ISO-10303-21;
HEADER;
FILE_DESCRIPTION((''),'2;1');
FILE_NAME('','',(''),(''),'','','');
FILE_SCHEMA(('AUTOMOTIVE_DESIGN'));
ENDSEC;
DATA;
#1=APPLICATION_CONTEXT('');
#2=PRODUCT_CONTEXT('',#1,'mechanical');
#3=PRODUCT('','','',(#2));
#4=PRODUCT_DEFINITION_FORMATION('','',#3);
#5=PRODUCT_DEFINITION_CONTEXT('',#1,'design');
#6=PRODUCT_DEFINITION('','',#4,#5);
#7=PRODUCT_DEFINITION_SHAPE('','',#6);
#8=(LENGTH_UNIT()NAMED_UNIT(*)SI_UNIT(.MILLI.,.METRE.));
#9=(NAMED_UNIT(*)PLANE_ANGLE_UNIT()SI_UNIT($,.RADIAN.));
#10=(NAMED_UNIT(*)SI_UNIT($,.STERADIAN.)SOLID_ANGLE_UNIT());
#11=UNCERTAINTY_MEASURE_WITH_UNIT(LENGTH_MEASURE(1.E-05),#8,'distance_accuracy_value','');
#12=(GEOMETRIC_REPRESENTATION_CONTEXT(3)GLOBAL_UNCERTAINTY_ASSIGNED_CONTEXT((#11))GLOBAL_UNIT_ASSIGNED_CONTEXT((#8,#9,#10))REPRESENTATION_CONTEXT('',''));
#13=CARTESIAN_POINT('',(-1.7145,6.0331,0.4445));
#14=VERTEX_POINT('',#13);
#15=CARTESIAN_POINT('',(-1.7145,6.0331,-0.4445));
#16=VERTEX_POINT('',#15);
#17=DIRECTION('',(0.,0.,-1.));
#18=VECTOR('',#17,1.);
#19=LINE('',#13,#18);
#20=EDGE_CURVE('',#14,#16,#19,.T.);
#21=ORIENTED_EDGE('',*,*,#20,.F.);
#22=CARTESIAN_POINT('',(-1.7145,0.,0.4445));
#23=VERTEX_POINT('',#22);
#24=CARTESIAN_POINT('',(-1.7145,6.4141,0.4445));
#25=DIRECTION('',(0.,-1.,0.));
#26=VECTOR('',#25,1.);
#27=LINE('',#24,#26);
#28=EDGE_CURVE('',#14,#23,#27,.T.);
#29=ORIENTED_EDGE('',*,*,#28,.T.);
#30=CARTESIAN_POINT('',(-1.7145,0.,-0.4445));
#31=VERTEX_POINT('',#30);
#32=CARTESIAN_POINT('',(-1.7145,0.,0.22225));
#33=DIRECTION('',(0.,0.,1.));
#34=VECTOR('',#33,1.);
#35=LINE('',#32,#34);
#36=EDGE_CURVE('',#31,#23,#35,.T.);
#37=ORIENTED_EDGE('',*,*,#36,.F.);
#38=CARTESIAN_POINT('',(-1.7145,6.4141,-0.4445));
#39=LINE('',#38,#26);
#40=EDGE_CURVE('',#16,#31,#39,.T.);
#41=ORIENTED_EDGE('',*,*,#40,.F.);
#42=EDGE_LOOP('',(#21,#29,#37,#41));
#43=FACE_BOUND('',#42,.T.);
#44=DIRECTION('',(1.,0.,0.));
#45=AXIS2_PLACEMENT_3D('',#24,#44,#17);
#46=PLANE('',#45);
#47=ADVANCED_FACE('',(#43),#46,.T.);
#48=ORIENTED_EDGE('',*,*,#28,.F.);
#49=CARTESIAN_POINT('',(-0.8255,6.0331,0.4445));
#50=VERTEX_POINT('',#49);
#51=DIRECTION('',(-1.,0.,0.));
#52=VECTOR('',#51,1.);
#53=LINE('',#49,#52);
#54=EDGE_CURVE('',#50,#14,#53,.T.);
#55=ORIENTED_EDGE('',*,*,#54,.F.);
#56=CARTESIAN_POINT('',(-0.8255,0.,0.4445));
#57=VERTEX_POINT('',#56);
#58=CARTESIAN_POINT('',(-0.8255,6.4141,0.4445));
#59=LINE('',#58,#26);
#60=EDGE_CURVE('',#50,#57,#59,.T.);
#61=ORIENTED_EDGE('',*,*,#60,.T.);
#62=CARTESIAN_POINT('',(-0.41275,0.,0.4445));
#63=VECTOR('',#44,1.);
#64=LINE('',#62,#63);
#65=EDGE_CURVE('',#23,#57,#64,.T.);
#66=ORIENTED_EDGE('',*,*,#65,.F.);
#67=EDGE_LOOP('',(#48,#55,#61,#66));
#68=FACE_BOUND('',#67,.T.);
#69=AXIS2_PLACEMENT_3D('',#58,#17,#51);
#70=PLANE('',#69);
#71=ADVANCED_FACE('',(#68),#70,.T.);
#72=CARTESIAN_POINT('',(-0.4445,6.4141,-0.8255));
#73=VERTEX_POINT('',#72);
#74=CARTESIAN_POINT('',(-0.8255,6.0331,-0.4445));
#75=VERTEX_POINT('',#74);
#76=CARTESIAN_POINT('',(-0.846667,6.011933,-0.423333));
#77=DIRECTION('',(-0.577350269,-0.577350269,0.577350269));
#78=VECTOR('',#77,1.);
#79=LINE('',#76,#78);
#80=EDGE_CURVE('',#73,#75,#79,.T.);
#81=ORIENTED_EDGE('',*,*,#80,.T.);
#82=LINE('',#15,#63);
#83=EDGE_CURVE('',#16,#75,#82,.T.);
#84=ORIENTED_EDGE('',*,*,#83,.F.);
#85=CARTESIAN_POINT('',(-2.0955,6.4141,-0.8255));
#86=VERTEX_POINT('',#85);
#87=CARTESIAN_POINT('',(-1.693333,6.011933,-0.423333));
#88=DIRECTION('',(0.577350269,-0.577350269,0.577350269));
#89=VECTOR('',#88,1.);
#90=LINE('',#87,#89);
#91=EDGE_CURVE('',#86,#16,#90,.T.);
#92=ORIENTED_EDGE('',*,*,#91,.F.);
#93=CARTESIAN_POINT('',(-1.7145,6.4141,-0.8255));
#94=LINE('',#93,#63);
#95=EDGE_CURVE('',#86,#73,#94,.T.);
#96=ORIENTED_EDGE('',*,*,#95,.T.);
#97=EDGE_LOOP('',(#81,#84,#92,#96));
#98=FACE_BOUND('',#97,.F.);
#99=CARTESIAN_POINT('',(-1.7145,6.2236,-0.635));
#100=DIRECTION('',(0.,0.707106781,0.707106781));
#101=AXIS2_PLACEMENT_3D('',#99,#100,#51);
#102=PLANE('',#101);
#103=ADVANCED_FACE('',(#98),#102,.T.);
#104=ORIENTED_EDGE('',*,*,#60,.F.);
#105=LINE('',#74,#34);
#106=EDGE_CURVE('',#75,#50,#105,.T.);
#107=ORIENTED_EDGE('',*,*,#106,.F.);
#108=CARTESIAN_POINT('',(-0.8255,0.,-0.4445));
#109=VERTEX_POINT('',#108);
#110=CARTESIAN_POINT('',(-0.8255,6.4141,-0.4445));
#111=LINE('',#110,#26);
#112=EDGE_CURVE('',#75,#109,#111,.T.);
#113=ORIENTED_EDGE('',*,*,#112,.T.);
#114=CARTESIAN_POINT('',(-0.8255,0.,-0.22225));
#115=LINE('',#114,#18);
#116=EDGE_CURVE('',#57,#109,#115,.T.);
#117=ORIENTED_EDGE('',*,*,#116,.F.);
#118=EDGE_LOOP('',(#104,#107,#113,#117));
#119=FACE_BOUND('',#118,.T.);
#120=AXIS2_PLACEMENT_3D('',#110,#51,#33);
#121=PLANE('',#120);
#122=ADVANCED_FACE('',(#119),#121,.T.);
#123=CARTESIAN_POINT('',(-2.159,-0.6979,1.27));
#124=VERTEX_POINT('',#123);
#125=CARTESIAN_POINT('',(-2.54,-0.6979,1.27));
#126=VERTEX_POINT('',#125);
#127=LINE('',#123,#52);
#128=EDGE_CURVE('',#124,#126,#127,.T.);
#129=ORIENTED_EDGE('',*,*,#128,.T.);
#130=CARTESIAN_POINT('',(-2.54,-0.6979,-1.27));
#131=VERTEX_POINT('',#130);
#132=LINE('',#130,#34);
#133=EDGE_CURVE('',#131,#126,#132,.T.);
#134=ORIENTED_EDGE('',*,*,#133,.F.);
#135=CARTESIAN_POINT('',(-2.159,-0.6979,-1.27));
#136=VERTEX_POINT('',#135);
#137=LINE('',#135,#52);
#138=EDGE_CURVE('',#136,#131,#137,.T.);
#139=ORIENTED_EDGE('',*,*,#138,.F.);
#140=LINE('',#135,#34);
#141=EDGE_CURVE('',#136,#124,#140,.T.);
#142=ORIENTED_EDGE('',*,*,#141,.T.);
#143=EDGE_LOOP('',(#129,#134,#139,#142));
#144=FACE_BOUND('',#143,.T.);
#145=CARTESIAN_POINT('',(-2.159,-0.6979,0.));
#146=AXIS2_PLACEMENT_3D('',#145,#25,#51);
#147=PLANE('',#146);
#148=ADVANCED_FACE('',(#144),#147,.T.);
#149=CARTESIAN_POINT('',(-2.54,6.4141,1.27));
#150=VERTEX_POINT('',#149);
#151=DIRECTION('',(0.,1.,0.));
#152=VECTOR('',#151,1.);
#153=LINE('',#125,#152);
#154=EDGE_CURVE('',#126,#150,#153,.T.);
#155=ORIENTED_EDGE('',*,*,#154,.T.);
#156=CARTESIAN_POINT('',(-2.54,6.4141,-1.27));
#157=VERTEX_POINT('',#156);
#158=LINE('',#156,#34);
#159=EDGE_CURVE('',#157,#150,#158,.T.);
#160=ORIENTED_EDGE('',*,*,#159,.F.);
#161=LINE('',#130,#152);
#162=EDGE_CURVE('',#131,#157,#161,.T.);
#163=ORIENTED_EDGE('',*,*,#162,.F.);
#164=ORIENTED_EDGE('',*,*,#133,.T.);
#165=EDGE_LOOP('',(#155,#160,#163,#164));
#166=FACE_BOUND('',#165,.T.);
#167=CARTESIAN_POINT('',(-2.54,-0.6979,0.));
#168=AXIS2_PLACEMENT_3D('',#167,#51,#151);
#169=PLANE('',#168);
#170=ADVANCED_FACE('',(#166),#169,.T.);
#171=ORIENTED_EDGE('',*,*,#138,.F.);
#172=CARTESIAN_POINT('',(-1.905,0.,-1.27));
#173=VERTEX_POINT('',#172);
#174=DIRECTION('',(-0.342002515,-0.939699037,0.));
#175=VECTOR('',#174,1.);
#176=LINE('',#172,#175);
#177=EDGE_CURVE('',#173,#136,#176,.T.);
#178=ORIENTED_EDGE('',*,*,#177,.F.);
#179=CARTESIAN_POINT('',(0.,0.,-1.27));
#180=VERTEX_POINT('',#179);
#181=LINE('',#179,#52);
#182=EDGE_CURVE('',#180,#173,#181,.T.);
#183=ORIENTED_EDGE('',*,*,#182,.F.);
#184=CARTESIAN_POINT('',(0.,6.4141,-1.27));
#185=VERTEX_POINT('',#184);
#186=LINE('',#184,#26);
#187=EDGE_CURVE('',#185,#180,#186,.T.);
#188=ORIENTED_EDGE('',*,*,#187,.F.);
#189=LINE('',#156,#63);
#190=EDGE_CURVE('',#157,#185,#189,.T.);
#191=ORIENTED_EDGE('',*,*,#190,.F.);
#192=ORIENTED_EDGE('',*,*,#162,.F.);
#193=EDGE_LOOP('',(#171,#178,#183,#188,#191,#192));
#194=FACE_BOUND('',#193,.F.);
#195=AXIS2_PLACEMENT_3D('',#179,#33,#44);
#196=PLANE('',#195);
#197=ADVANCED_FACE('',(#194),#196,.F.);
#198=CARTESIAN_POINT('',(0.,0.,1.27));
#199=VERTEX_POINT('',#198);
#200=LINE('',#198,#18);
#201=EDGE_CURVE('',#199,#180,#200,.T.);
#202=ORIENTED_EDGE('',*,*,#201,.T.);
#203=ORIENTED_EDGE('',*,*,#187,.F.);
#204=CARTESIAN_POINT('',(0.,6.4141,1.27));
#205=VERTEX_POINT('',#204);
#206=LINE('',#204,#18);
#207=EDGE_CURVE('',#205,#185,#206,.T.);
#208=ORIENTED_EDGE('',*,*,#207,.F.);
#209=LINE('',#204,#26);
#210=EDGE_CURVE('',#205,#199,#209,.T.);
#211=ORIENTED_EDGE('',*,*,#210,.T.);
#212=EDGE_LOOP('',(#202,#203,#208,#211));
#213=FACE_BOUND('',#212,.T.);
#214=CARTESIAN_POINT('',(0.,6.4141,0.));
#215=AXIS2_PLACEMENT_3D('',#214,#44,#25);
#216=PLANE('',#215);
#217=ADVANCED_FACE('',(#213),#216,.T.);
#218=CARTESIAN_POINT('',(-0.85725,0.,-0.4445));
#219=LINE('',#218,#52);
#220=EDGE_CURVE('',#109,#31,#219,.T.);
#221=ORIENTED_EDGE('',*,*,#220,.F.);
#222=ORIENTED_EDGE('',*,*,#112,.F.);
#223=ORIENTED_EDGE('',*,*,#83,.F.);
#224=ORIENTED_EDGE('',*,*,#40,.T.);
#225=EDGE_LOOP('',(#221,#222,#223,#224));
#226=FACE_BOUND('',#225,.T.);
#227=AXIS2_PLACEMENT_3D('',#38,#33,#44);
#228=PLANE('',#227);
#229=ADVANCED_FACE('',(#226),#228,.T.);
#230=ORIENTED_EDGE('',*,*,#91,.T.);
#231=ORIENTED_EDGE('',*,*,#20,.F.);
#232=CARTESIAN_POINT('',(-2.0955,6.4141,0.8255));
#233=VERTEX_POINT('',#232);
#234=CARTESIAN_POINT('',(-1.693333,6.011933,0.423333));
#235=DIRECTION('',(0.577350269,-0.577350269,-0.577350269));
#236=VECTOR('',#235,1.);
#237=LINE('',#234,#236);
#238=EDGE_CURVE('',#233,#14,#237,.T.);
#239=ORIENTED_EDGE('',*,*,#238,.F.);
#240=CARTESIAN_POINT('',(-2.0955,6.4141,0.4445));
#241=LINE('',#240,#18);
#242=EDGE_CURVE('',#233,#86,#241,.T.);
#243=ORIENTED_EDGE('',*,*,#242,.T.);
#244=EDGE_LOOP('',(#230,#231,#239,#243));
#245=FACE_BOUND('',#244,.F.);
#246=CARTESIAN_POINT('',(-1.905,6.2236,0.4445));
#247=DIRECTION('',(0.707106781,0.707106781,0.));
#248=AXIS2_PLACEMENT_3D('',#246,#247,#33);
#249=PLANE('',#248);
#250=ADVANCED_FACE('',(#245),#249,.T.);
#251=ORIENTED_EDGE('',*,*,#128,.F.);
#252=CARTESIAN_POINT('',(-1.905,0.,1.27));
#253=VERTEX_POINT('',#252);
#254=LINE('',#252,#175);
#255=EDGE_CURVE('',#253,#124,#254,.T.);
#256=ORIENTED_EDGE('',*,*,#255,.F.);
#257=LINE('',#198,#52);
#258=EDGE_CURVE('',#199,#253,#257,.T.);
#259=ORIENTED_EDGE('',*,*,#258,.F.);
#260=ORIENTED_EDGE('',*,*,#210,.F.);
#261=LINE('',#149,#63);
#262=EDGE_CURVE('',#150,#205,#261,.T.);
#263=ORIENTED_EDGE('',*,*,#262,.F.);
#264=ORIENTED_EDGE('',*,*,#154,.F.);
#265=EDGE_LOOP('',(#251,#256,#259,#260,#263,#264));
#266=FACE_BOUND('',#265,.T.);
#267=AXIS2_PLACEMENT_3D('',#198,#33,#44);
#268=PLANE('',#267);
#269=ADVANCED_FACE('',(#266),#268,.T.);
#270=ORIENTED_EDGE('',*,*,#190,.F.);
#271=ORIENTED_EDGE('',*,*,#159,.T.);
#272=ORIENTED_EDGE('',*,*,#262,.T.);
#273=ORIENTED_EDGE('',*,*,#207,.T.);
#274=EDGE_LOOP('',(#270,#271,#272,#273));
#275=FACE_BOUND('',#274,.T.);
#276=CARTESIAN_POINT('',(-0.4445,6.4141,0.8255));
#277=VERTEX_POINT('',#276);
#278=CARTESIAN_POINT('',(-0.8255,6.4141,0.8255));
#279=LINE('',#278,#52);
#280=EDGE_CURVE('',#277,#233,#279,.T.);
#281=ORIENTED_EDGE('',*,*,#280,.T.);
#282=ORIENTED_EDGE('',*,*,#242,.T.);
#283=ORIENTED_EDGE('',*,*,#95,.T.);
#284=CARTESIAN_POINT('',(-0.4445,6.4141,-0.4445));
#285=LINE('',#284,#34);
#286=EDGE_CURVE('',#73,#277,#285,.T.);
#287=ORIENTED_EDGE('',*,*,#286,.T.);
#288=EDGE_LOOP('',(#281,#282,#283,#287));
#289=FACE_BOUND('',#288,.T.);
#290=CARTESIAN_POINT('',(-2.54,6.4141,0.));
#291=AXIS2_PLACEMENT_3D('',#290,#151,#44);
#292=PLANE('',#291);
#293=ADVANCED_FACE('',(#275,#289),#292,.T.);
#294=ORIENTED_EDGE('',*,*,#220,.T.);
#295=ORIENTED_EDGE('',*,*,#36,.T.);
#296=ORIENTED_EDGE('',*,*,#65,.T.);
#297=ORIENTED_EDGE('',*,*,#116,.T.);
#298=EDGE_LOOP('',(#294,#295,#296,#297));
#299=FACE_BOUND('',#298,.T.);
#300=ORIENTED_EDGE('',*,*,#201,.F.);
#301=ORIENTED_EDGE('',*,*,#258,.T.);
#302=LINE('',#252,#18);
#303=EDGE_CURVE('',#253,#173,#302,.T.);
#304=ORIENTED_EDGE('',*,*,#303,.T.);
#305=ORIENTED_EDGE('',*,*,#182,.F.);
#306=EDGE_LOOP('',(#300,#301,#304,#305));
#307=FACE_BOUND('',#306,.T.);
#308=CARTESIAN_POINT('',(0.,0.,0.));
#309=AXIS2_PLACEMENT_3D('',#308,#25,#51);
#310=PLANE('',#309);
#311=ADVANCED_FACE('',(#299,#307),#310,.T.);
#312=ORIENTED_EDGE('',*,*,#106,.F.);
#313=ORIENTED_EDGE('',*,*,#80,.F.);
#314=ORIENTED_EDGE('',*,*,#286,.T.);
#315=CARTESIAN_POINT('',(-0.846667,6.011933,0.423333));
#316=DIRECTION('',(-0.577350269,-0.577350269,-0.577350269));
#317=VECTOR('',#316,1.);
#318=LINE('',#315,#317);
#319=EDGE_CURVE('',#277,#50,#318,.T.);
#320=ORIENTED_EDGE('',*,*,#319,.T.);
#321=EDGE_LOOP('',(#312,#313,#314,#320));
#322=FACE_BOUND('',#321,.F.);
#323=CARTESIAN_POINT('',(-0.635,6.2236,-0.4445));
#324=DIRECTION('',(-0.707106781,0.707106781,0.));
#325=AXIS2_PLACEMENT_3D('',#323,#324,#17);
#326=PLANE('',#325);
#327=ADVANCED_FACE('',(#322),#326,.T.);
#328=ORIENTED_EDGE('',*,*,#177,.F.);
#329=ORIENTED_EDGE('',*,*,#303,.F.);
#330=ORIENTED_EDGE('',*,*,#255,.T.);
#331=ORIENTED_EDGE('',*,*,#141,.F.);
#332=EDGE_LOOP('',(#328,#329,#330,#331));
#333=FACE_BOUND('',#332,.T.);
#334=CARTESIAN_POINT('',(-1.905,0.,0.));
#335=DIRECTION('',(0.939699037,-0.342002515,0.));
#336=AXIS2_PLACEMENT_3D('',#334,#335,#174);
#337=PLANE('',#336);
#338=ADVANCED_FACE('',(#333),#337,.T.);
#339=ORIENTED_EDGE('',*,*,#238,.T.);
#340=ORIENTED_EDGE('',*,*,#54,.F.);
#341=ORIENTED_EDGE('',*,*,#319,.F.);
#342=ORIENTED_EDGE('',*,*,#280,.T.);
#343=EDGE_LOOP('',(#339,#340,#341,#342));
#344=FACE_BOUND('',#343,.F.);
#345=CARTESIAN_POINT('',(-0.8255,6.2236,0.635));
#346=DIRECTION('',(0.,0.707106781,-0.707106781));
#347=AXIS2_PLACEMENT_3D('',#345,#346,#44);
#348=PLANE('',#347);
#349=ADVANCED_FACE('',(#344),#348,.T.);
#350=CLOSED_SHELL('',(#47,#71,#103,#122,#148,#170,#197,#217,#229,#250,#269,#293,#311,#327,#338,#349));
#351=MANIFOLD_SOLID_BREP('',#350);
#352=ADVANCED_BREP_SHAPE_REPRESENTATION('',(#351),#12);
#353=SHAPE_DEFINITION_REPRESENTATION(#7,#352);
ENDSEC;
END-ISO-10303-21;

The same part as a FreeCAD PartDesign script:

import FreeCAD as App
import Part
import Sketcher
from FreeCAD import Vector
Q = App.Units.Quantity


def edges_at(feature, points):
    """Names of the edges that pass closest to the given points."""
    edges = feature.Shape.Edges
    near = lambda p: min(range(len(edges)), key=lambda i: edges[i].distToShape(Part.Vertex(*p))[0])
    return sorted({f"Edge{near(p) + 1}" for p in points})

doc = App.newDocument("Part")
body = doc.addObject("PartDesign::Body", "Body")

# Sketch on XY plane
sketch1 = doc.addObject("Sketcher::SketchObject", "Sketch")
body.addObject(sketch1)
sketch1.AttachmentSupport = (doc.XY_Plane, [""])
sketch1.MapMode = "FlatFace"
sketch1.addGeometry([
    Part.LineSegment(Vector(0, 6.41, 0), Vector(-2.54, 6.41, 0)),  # 0
    Part.LineSegment(Vector(-2.54, 6.41, 0), Vector(-2.54, -0.7, 0)),  # 1
    Part.LineSegment(Vector(-2.54, -0.7, 0), Vector(-2.16, -0.7, 0)),  # 2
    Part.LineSegment(Vector(-2.16, -0.7, 0), Vector(-1.91, 0, 0)),  # 3
    Part.LineSegment(Vector(-1.91, 0, 0), Vector(0, 0, 0)),  # 4
    Part.LineSegment(Vector(0, 0, 0), Vector(0, 6.41, 0)),  # 5
], False)
sketch1.addConstraint([
    Sketcher.Constraint("Coincident", 0, 2, 1, 1),
    Sketcher.Constraint("Coincident", 1, 2, 2, 1),
    Sketcher.Constraint("Coincident", 2, 2, 3, 1),
    Sketcher.Constraint("Coincident", 3, 2, 4, 1),
    Sketcher.Constraint("Coincident", 4, 2, 5, 1),
    Sketcher.Constraint("Coincident", 5, 2, 0, 1),
    Sketcher.Constraint("Horizontal", 0),
    Sketcher.Constraint("Vertical", 1),
    Sketcher.Constraint("Horizontal", 2),
    Sketcher.Constraint("Horizontal", 4),
    Sketcher.Constraint("Vertical", 5),
    Sketcher.Constraint("Coincident", 4, 2, -1, 1),
    Sketcher.Constraint("DistanceX", 0, 2, 0, 1, Q("0.1 in")),
    Sketcher.Constraint("DistanceY", 1, 2, 1, 1, Q("0.28 in")),
    Sketcher.Constraint("DistanceX", 2, 1, 2, 2, Q("0.015 in")),
    Sketcher.Constraint("DistanceX", 4, 1, 4, 2, Q("0.075 in")),
    Sketcher.Constraint("Angle", 3, Q("70.001 deg")),
])
pad1 = doc.addObject("PartDesign::Pad", "Pad")
body.addObject(pad1)
pad1.Profile = sketch1
pad1.Length = Q("0.1 in")
pad1.Midplane = True

# Sketch on XZ plane
sketch2 = doc.addObject("Sketcher::SketchObject", "Sketch001")
body.addObject(sketch2)
sketch2.AttachmentSupport = (doc.XZ_Plane, [""])
sketch2.MapMode = "FlatFace"
sketch2.AttachmentOffset = App.Placement(Vector(0, 0, -6.4141), App.Rotation())
sketch2.addGeometry([
    Part.LineSegment(Vector(-0.8, -0.4, 0), Vector(-1.7, -0.4, 0)),
    Part.LineSegment(Vector(-1.7, -0.4, 0), Vector(-1.7, 0.4, 0)),
    Part.LineSegment(Vector(-1.7, 0.4, 0), Vector(-0.8, 0.4, 0)),
    Part.LineSegment(Vector(-0.8, 0.4, 0), Vector(-0.8, -0.4, 0)),
], False)
sketch2.addConstraint([
    Sketcher.Constraint("Coincident", 0, 2, 1, 1),
    Sketcher.Constraint("Coincident", 1, 2, 2, 1),
    Sketcher.Constraint("Coincident", 2, 2, 3, 1),
    Sketcher.Constraint("Coincident", 3, 2, 0, 1),
    Sketcher.Constraint("Horizontal", 0),
    Sketcher.Constraint("Vertical", 1),
    Sketcher.Constraint("Horizontal", 2),
    Sketcher.Constraint("Vertical", 3),
    Sketcher.Constraint("Equal", 2, 1),
    Sketcher.Constraint("DistanceX", 0, 2, 0, 1, Q("0.035 in")),
    Sketcher.Constraint("DistanceX", 0, 2, -1, 1, Q("0.0675 in")),
    Sketcher.Constraint("DistanceY", 0, 2, -1, 1, Q("0.0175 in")),
])
pocket1 = doc.addObject("PartDesign::Pocket", "Pocket")
body.addObject(pocket1)
pocket1.Profile = sketch2
pocket1.Type = "ThroughAll"
pocket1.Reversed = True
doc.recompute()

chamfer = doc.addObject("PartDesign::Chamfer", "Chamfer")
body.addObject(chamfer)
chamfer.Base = (pocket1, edges_at(pocket1, [
    (-1.27, 6.414, -0.445),
    (-1.714, 6.414, 0),
    (-1.27, 6.414, 0.445),
    (-0.826, 6.414, 0),
]))
chamfer.Size = Q("0.015 in")

doc.recompute()
